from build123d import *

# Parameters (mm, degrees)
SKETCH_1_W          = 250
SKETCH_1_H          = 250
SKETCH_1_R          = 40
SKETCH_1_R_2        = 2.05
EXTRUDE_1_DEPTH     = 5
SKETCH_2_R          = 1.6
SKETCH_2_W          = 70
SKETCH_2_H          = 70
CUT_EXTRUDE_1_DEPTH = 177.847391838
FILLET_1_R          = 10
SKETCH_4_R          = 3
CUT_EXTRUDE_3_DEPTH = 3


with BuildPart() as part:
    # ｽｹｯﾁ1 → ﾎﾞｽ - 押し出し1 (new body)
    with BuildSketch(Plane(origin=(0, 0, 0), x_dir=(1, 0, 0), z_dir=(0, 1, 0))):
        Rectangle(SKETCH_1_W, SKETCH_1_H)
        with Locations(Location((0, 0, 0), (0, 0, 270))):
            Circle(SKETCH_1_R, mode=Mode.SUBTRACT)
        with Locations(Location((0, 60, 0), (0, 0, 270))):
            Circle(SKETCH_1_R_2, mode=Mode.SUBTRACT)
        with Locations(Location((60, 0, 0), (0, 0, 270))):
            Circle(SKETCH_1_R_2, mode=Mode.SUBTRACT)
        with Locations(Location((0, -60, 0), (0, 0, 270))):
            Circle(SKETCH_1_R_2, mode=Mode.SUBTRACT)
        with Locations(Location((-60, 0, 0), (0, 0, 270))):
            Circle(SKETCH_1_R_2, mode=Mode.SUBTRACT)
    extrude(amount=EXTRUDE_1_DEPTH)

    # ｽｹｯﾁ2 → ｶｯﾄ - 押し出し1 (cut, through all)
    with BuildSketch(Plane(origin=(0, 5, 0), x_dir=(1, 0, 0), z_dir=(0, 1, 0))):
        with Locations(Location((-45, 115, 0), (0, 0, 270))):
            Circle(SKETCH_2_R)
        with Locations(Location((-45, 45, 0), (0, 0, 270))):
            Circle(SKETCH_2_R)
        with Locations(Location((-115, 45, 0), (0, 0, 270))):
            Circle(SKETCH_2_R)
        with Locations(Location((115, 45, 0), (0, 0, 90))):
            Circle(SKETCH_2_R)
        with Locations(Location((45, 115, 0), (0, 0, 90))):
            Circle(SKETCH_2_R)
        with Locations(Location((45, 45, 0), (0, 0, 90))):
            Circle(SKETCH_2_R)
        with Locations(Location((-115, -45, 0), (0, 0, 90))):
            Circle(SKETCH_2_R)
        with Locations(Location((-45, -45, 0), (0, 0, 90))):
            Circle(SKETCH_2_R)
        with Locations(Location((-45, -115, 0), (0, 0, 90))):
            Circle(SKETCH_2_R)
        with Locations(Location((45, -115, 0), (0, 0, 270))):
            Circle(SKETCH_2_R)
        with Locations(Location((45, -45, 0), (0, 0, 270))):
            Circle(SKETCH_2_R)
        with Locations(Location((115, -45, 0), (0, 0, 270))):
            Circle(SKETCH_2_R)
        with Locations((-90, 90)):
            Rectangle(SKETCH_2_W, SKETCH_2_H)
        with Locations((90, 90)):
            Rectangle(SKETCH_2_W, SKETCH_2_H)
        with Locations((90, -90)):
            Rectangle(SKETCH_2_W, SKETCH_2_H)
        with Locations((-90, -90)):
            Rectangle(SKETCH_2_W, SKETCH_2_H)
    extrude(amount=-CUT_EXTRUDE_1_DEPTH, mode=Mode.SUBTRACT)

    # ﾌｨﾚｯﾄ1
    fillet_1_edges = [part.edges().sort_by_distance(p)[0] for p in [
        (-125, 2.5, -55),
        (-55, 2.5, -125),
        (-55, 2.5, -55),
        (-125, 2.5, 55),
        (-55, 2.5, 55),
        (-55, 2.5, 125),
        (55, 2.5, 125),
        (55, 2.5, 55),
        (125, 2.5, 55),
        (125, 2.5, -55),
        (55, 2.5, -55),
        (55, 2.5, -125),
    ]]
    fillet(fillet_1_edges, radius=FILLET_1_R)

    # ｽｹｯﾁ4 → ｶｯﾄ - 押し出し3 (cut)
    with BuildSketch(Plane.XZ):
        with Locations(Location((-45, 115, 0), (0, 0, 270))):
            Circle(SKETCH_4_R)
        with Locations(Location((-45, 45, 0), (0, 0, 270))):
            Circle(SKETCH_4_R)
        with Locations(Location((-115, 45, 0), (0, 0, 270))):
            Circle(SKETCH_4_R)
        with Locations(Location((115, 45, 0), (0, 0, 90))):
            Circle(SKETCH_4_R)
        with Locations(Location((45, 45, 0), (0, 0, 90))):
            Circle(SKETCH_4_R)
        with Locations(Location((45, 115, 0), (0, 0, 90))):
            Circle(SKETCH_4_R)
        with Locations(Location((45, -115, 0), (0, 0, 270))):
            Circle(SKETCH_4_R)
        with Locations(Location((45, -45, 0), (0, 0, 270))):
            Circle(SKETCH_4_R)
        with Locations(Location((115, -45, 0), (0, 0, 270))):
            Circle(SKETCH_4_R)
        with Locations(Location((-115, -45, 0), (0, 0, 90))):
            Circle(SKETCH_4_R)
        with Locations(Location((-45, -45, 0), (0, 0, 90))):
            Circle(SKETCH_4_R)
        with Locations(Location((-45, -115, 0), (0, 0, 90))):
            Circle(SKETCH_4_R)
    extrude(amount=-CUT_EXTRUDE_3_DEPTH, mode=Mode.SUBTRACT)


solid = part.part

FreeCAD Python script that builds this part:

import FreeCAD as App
import Part
import Sketcher
from FreeCAD import Vector
Q = App.Units.Quantity


def edges_at(feature, points):
    """Names of the edges that pass closest to the given points."""
    edges = feature.Shape.Edges
    near = lambda p: min(range(len(edges)), key=lambda i: edges[i].distToShape(Part.Vertex(*p))[0])
    return sorted({f"Edge{near(p) + 1}" for p in points})

doc = App.newDocument("Part")
body = doc.addObject("PartDesign::Body", "Body")

sketch1 = body.newObject("Sketcher::SketchObject", "Sketch")
sketch1.AttachmentSupport = (doc.getObject("XZ_Plane"), [""])
sketch1.MapMode = "FlatFace"
sketch1.addGeometry([
    Part.LineSegment(Vector(-125, -125, 0), Vector(-125, 125, 0)),
    Part.LineSegment(Vector(-125, 125, 0), Vector(125, 125, 0)),
    Part.LineSegment(Vector(125, 125, 0), Vector(125, -125, 0)),
    Part.LineSegment(Vector(125, -125, 0), Vector(-125, -125, 0)),
    Part.Circle(Vector(0, 60, 0), Vector(0, 0, 1), 2.05),
    Part.Circle(Vector(-60, 0, 0), Vector(0, 0, 1), 2.05),
    Part.Circle(Vector(0, 0, 0), Vector(0, 0, 1), 40),
    Part.Circle(Vector(60, 0, 0), Vector(0, 0, 1), 2.05),
    Part.Circle(Vector(0, -60, 0), Vector(0, 0, 1), 2.05),
], False)
sketch1.addConstraint([
    Sketcher.Constraint("Coincident", 0, 2, 1, 1),
    Sketcher.Constraint("Coincident", 1, 2, 2, 1),
    Sketcher.Constraint("Coincident", 2, 2, 3, 1),
    Sketcher.Constraint("Coincident", 3, 2, 0, 1),
    Sketcher.Constraint("Vertical", 0),
    Sketcher.Constraint("Horizontal", 1),
    Sketcher.Constraint("Vertical", 2),
    Sketcher.Constraint("Horizontal", 3),
    Sketcher.Constraint("Coincident", 6, 3, -1, 1),
    Sketcher.Constraint("Equal", 4, 5),
    Sketcher.Constraint("Equal", 5, 7),
    Sketcher.Constraint("Equal", 7, 8),
    Sketcher.Constraint("Symmetric", 5, 3, 7, 3, -1, 1),
    Sketcher.Constraint("Symmetric", 4, 3, 8, 3, -1, 1),
    Sketcher.Constraint("Symmetric", 0, 2, 2, 2, -1, 1),
    Sketcher.Constraint("PointOnObject", 4, 3, -2),
    Sketcher.Constraint("PointOnObject", 5, 3, -1),
    Sketcher.Constraint("Equal", 3, 0),
    Sketcher.Constraint("Diameter", 6, Q("80 mm")),
    Sketcher.Constraint("Diameter", 4, Q("4.1 mm")),
    Sketcher.Constraint("DistanceX", 1, 1, 1, 2, Q("250 mm")),
    Sketcher.Constraint("DistanceY", -1, 1, 4, 3, Q("60 mm")),
    Sketcher.Constraint("DistanceX", 5, 3, -1, 1, Q("60 mm")),
])
pad1 = body.newObject("PartDesign::Pad", "Pad")
pad1.Profile = sketch1
pad1.Length = 5
pad1.Reversed = True

sketch2 = body.newObject("Sketcher::SketchObject", "Sketch001")
sketch2.AttachmentSupport = (doc.getObject("XZ_Plane"), [""])
sketch2.MapMode = "FlatFace"
sketch2.AttachmentOffset = App.Placement(Vector(0, 0, -5), App.Rotation())
sketch2.addGeometry([
    Part.Circle(Vector(-45, -115, 0), Vector(0, 0, 1), 1.6),
    Part.Circle(Vector(-45, -45, 0), Vector(0, 0, 1), 1.6),
    Part.Circle(Vector(-115, -45, 0), Vector(0, 0, 1), 1.6),
    Part.Circle(Vector(115, -45, 0), Vector(0, 0, 1), 1.6),
    Part.Circle(Vector(45, -115, 0), Vector(0, 0, 1), 1.6),
    Part.Circle(Vector(45, -45, 0), Vector(0, 0, 1), 1.6),
    Part.Circle(Vector(-115, 45, 0), Vector(0, 0, 1), 1.6),
    Part.Circle(Vector(-45, 45, 0), Vector(0, 0, 1), 1.6),
    Part.Circle(Vector(-45, 115, 0), Vector(0, 0, 1), 1.6),
    Part.Circle(Vector(45, 115, 0), Vector(0, 0, 1), 1.6),
    Part.Circle(Vector(45, 45, 0), Vector(0, 0, 1), 1.6),
    Part.Circle(Vector(115, 45, 0), Vector(0, 0, 1), 1.6),
    Part.LineSegment(Vector(-125, -125, 0), Vector(-125, -55, 0)),
    Part.LineSegment(Vector(-125, -55, 0), Vector(-55, -55, 0)),
    Part.LineSegment(Vector(-55, -55, 0), Vector(-55, -125, 0)),
    Part.LineSegment(Vector(-55, -125, 0), Vector(-125, -125, 0)),
    Part.LineSegment(Vector(55, -125, 0), Vector(55, -55, 0)),
    Part.LineSegment(Vector(55, -55, 0), Vector(125, -55, 0)),
    Part.LineSegment(Vector(125, -55, 0), Vector(125, -125, 0)),
    Part.LineSegment(Vector(125, -125, 0), Vector(55, -125, 0)),
    Part.LineSegment(Vector(55, 55, 0), Vector(55, 125, 0)),
    Part.LineSegment(Vector(55, 125, 0), Vector(125, 125, 0)),
    Part.LineSegment(Vector(125, 125, 0), Vector(125, 55, 0)),
    Part.LineSegment(Vector(125, 55, 0), Vector(55, 55, 0)),
    Part.LineSegment(Vector(-125, 55, 0), Vector(-125, 125, 0)),
    Part.LineSegment(Vector(-125, 125, 0), Vector(-55, 125, 0)),
    Part.LineSegment(Vector(-55, 125, 0), Vector(-55, 55, 0)),
    Part.LineSegment(Vector(-55, 55, 0), Vector(-125, 55, 0)),
], False)
sketch2.addConstraint([
    Sketcher.Constraint("Coincident", 12, 2, 13, 1),
    Sketcher.Constraint("Coincident", 13, 2, 14, 1),
    Sketcher.Constraint("Coincident", 14, 2, 15, 1),
    Sketcher.Constraint("Coincident", 15, 2, 12, 1),
    Sketcher.Constraint("Coincident", 16, 2, 17, 1),
    Sketcher.Constraint("Coincident", 17, 2, 18, 1),
    Sketcher.Constraint("Coincident", 18, 2, 19, 1),
    Sketcher.Constraint("Coincident", 19, 2, 16, 1),
    Sketcher.Constraint("Coincident", 20, 2, 21, 1),
    Sketcher.Constraint("Coincident", 21, 2, 22, 1),
    Sketcher.Constraint("Coincident", 22, 2, 23, 1),
    Sketcher.Constraint("Coincident", 23, 2, 20, 1),
    Sketcher.Constraint("Coincident", 24, 2, 25, 1),
    Sketcher.Constraint("Coincident", 25, 2, 26, 1),
    Sketcher.Constraint("Coincident", 26, 2, 27, 1),
    Sketcher.Constraint("Coincident", 27, 2, 24, 1),
    Sketcher.Constraint("Vertical", 12),
    Sketcher.Constraint("Horizontal", 13),
    Sketcher.Constraint("Vertical", 14),
    Sketcher.Constraint("Horizontal", 15),
    Sketcher.Constraint("Vertical", 16),
    Sketcher.Constraint("Horizontal", 17),
    Sketcher.Constraint("Vertical", 18),
    Sketcher.Constraint("Horizontal", 19),
    Sketcher.Constraint("Vertical", 20),
    Sketcher.Constraint("Horizontal", 21),
    Sketcher.Constraint("Vertical", 22),
    Sketcher.Constraint("Horizontal", 23),
    Sketcher.Constraint("Vertical", 24),
    Sketcher.Constraint("Horizontal", 25),
    Sketcher.Constraint("Vertical", 26),
    Sketcher.Constraint("Horizontal", 27),
    Sketcher.Constraint("Equal", 0, 1),
    Sketcher.Constraint("Equal", 1, 2),
    Sketcher.Constraint("Equal", 2, 3),
    Sketcher.Constraint("Equal", 3, 4),
    Sketcher.Constraint("Equal", 4, 5),
    Sketcher.Constraint("Equal", 5, 6),
    Sketcher.Constraint("Equal", 6, 7),
    Sketcher.Constraint("Equal", 7, 8),
    Sketcher.Constraint("Equal", 8, 9),
    Sketcher.Constraint("Equal", 9, 10),
    Sketcher.Constraint("Equal", 10, 11),
    Sketcher.Constraint("Symmetric", 3, 3, 6, 3, -1, 1),
    Sketcher.Constraint("Symmetric", 5, 3, 7, 3, -1, 1),
    Sketcher.Constraint("Symmetric", 4, 3, 8, 3, -1, 1),
    Sketcher.Constraint("Symmetric", 0, 3, 9, 3, -1, 1),
    Sketcher.Constraint("Symmetric", 1, 3, 10, 3, -1, 1),
    Sketcher.Constraint("Symmetric", 2, 3, 11, 3, -1, 1),
    Sketcher.Constraint("Symmetric", 14, 2, 20, 2, -1, 1),
    Sketcher.Constraint("Symmetric", 12, 2, 22, 2, -1, 1),
    Sketcher.Constraint("Symmetric", 18, 2, 24, 2, -1, 1),
    Sketcher.Constraint("Symmetric", 16, 2, 26, 2, -1, 1),
    Sketcher.Constraint("Symmetric", 2, 3, 3, 3, -2),
    Sketcher.Constraint("Symmetric", 0, 3, 4, 3, -2),
    Sketcher.Constraint("Symmetric", 1, 3, 5, 3, -2),
    Sketcher.Constraint("Symmetric", 13, 2, 16, 2, -2),
    Sketcher.Constraint("Symmetric", 15, 2, 18, 2, -2),
    Sketcher.Constraint("Horizontal", 1, 3, 2, 3),
    Sketcher.Constraint("Vertical", 0, 3, 1, 3),
    Sketcher.Constraint("Equal", 27, 12),
    Sketcher.Constraint("Diameter", 0, Q("3.2 mm")),
    Sketcher.Constraint("DistanceX", 13, 1, 13, 2, Q("70 mm")),
    Sketcher.Constraint("DistanceX", 0, 3, -1, 1, Q("45 mm")),
    Sketcher.Constraint("DistanceY", 0, 3, -1, 1, Q("115 mm")),
    Sketcher.Constraint("DistanceY", 1, 3, -1, 1, Q("45 mm")),
    Sketcher.Constraint("DistanceX", 2, 3, -1, 1, Q("115 mm")),
    Sketcher.Constraint("DistanceX", 12, 2, -1, 1, Q("125 mm")),
    Sketcher.Constraint("DistanceY", 12, 2, -1, 1, Q("55 mm")),
])
pocket1 = body.newObject("PartDesign::Pocket", "Pocket")
pocket1.Profile = sketch2
pocket1.Type = "ThroughAll"
pocket1.Reversed = True
doc.recompute()

fillet = body.newObject("PartDesign::Fillet", "Fillet")
fillet.Base = (pocket1, edges_at(pocket1, [
    (-125, 2.5, -55),
    (-55, 2.5, -125),
    (-55, 2.5, -55),
    (-125, 2.5, 55),
    (-55, 2.5, 55),
    (-55, 2.5, 125),
    (55, 2.5, 125),
    (55, 2.5, 55),
    (125, 2.5, 55),
    (125, 2.5, -55),
    (55, 2.5, -55),
    (55, 2.5, -125),
]))
fillet.Radius = 10

sketch3 = body.newObject("Sketcher::SketchObject", "Sketch002")
sketch3.AttachmentSupport = (doc.getObject("XZ_Plane"), [""])
sketch3.MapMode = "FlatFace"
sketch3.addGeometry([
    Part.Circle(Vector(-45, 115, 0), Vector(0, 0, 1), 3),
    Part.Circle(Vector(-45, 45, 0), Vector(0, 0, 1), 3),
    Part.Circle(Vector(-115, 45, 0), Vector(0, 0, 1), 3),
    Part.Circle(Vector(115, 45, 0), Vector(0, 0, 1), 3),
    Part.Circle(Vector(45, 45, 0), Vector(0, 0, 1), 3),
    Part.Circle(Vector(45, 115, 0), Vector(0, 0, 1), 3),
    Part.Circle(Vector(45, -115, 0), Vector(0, 0, 1), 3),
    Part.Circle(Vector(45, -45, 0), Vector(0, 0, 1), 3),
    Part.Circle(Vector(115, -45, 0), Vector(0, 0, 1), 3),
    Part.Circle(Vector(-115, -45, 0), Vector(0, 0, 1), 3),
    Part.Circle(Vector(-45, -45, 0), Vector(0, 0, 1), 3),
    Part.Circle(Vector(-45, -115, 0), Vector(0, 0, 1), 3),
], False)
sketch3.addConstraint([
    Sketcher.Constraint("Equal", 0, 1),
    Sketcher.Constraint("Equal", 1, 2),
    Sketcher.Constraint("Equal", 2, 3),
    Sketcher.Constraint("Equal", 3, 4),
    Sketcher.Constraint("Equal", 4, 5),
    Sketcher.Constraint("Equal", 5, 6),
    Sketcher.Constraint("Equal", 6, 7),
    Sketcher.Constraint("Equal", 7, 8),
    Sketcher.Constraint("Equal", 8, 9),
    Sketcher.Constraint("Equal", 9, 10),
    Sketcher.Constraint("Equal", 10, 11),
    Sketcher.Constraint("Symmetric", 0, 3, 6, 3, -1, 1),
    Sketcher.Constraint("Symmetric", 1, 3, 7, 3, -1, 1),
    Sketcher.Constraint("Symmetric", 2, 3, 8, 3, -1, 1),
    Sketcher.Constraint("Symmetric", 3, 3, 9, 3, -1, 1),
    Sketcher.Constraint("Symmetric", 4, 3, 10, 3, -1, 1),
    Sketcher.Constraint("Symmetric", 5, 3, 11, 3, -1, 1),
    Sketcher.Constraint("Symmetric", 2, 3, 3, 3, -2),
    Sketcher.Constraint("Symmetric", 1, 3, 4, 3, -2),
    Sketcher.Constraint("Symmetric", 0, 3, 5, 3, -2),
    Sketcher.Constraint("Horizontal", 1, 3, 2, 3),
    Sketcher.Constraint("Vertical", 0, 3, 1, 3),
    Sketcher.Constraint("Diameter", 0, Q("6 mm")),
    Sketcher.Constraint("DistanceX", 0, 3, -1, 1, Q("45 mm")),
    Sketcher.Constraint("DistanceY", -1, 1, 0, 3, Q("115 mm")),
    Sketcher.Constraint("DistanceY", -1, 1, 1, 3, Q("45 mm")),
    Sketcher.Constraint("DistanceX", 2, 3, -1, 1, Q("115 mm")),
])
pocket2 = body.newObject("PartDesign::Pocket", "Pocket001")
pocket2.Profile = sketch3
pocket2.Length = 3

doc.recompute()
